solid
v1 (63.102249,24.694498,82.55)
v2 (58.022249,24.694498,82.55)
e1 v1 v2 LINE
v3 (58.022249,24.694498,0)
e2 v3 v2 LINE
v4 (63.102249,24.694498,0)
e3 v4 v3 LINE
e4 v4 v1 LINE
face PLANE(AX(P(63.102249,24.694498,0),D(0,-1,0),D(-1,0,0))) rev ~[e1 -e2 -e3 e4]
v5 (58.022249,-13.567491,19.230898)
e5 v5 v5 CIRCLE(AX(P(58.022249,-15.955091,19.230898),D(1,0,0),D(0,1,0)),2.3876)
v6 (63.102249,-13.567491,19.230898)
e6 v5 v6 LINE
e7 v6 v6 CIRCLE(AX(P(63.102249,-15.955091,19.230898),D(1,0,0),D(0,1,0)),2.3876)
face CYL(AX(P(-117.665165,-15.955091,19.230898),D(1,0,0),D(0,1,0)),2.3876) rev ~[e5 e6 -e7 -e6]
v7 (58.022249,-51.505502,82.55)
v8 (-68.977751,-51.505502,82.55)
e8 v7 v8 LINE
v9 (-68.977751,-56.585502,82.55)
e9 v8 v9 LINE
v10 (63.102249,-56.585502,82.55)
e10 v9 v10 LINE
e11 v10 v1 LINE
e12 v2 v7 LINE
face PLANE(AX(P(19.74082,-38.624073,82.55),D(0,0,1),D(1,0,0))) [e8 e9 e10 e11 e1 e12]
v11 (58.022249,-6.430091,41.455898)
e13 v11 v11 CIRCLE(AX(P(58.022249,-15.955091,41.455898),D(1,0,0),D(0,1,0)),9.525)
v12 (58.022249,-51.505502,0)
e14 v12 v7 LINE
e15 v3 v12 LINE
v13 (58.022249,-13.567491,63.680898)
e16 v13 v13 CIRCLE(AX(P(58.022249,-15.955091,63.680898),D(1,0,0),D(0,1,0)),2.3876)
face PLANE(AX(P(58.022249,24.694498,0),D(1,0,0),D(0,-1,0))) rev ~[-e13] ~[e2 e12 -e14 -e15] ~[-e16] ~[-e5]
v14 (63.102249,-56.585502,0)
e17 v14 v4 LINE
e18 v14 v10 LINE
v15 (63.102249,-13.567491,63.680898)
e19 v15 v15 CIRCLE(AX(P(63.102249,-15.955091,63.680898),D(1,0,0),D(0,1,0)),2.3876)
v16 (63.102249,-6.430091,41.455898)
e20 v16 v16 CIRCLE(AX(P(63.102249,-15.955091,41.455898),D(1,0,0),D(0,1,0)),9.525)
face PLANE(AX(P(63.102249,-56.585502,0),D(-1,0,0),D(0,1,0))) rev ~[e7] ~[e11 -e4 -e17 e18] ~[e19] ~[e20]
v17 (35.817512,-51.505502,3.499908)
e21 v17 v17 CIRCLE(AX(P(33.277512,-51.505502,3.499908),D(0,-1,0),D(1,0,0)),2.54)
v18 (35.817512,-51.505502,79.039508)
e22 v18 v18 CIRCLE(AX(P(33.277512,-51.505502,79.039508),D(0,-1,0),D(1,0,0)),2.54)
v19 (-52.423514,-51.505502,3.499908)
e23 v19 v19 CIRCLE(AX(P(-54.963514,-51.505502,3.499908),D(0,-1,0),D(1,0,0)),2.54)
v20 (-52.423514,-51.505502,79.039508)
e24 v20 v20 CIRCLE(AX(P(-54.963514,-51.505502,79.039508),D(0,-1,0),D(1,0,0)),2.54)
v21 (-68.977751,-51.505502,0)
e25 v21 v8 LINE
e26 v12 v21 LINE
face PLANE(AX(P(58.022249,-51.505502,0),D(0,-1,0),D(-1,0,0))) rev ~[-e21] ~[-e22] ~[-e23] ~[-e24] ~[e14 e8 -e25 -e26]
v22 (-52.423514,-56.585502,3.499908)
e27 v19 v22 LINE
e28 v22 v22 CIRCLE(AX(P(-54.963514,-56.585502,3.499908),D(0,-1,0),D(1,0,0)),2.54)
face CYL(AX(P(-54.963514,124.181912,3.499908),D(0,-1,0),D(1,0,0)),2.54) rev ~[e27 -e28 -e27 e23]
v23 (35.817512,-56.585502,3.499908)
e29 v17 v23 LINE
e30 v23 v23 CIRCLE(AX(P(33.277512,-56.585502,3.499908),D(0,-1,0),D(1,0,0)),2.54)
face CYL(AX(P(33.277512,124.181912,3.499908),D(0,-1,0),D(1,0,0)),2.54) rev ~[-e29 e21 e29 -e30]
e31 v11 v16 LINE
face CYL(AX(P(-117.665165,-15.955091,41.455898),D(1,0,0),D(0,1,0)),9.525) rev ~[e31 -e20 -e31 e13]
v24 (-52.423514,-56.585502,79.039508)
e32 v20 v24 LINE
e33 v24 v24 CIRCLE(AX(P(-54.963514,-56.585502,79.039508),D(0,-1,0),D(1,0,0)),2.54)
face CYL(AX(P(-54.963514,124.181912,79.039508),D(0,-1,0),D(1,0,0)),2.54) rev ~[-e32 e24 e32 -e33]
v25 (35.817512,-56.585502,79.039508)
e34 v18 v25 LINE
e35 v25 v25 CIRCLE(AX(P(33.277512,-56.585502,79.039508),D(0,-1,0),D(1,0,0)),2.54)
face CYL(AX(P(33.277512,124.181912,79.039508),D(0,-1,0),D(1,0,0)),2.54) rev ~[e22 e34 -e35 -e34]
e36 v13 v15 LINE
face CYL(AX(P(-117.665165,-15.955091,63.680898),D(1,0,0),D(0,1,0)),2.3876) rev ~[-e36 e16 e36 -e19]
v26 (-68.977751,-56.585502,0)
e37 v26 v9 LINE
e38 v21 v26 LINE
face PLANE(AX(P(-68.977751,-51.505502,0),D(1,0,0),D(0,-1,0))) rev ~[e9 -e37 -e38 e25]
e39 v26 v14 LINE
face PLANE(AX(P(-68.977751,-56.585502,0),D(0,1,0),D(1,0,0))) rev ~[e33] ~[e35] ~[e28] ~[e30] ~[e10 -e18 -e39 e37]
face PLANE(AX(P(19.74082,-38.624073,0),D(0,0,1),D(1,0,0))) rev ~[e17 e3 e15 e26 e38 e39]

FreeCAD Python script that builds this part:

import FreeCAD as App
import Part
import Sketcher
Q = App.Units.Quantity

doc = App.newDocument("Part")
body = doc.addObject("PartDesign::Body", "Body")

# Sketch on XY plane
sketch1 = doc.addObject("Sketcher::SketchObject", "Sketch")
body.addObject(sketch1)
sketch1.AttachmentSupport = (doc.XY_Plane, [""])
sketch1.MapMode = "FlatFace"
sketch1.addGeometry([
    Part.LineSegment(App.Vector(58, -52, 0), App.Vector(-69, -52, 0)),  # 0
    Part.LineSegment(App.Vector(-69, -52, 0), App.Vector(-69, -57, 0)),  # 1
    Part.LineSegment(App.Vector(-69, -57, 0), App.Vector(63, -57, 0)),  # 2
    Part.LineSegment(App.Vector(63, -57, 0), App.Vector(63, 25, 0)),  # 3
    Part.LineSegment(App.Vector(63, 25, 0), App.Vector(58, 25, 0)),  # 4
    Part.LineSegment(App.Vector(58, 25, 0), App.Vector(58, -52, 0)),  # 5
], False)
sketch1.addConstraint([
    Sketcher.Constraint("Coincident", 0, 2, 1, 1),
    Sketcher.Constraint("Coincident", 1, 2, 2, 1),
    Sketcher.Constraint("Coincident", 2, 2, 3, 1),
    Sketcher.Constraint("Coincident", 3, 2, 4, 1),
    Sketcher.Constraint("Coincident", 4, 2, 5, 1),
    Sketcher.Constraint("Coincident", 5, 2, 0, 1),
    Sketcher.Constraint("Horizontal", 0),
    Sketcher.Constraint("Vertical", 1),
    Sketcher.Constraint("Horizontal", 2),
    Sketcher.Constraint("Vertical", 3),
    Sketcher.Constraint("Horizontal", 4),
    Sketcher.Constraint("Vertical", 5),
    Sketcher.Constraint("Equal", 4, 1),
    Sketcher.Constraint("DistanceX", 0, 2, 0, 1, Q("5 in")),
    Sketcher.Constraint("DistanceY", 5, 2, 5, 1, Q("3 in")),
    Sketcher.Constraint("DistanceX", 2, 1, 2, 2, Q("5.2 in")),
    Sketcher.Constraint("DistanceY", 1, 2, -1, 1, 56.585502),
    Sketcher.Constraint("DistanceX", 0, 2, -1, 1, 68.977751),
])
pad1 = doc.addObject("PartDesign::Pad", "Pad")
body.addObject(pad1)
pad1.Profile = sketch1
pad1.Length = Q("3.25 in")

# Sketch on YZ plane
sketch2 = doc.addObject("Sketcher::SketchObject", "Sketch001")
body.addObject(sketch2)
sketch2.AttachmentSupport = (doc.YZ_Plane, [""])
sketch2.MapMode = "FlatFace"
sketch2.AttachmentOffset = App.Placement(App.Vector(0, 0, 58.022249), App.Rotation())
sketch2.addGeometry(Part.Circle(App.Vector(-16, 41, 0), App.Vector(0, 0, 1), 10), False)
sketch2.addConstraint([
    Sketcher.Constraint("Diameter", 0, Q("0.75 in")),
    Sketcher.Constraint("DistanceX", 0, 3, -1, 1, 15.955091),
    Sketcher.Constraint("DistanceY", -1, 1, 0, 3, 41.455898),
])
doc.recompute()
hole = doc.addObject("PartDesign::Hole", "Hole")
body.addObject(hole)
hole.Profile = sketch2
hole.ThreadType = "None"
hole.Diameter = Q("0.75 in")
hole.DepthType = "ThroughAll"
hole.Reversed = True

# Sketch on YZ plane
sketch3 = doc.addObject("Sketcher::SketchObject", "Sketch002")
body.addObject(sketch3)
sketch3.AttachmentSupport = (doc.YZ_Plane, [""])
sketch3.MapMode = "FlatFace"
sketch3.AttachmentOffset = App.Placement(App.Vector(0, 0, 58.022249), App.Rotation())
sketch3.addGeometry(Part.Circle(App.Vector(-16, 63.7, 0), App.Vector(0, 0, 1), 2.4), False)
sketch3.addConstraint([
    Sketcher.Constraint("Diameter", 0, Q("0.188 in")),
    Sketcher.Constraint("DistanceX", 0, 3, -1, 1, 15.955091),
    Sketcher.Constraint("DistanceY", -1, 1, 0, 3, 63.680898),
])
doc.recompute()
hole2 = doc.addObject("PartDesign::Hole", "Hole001")
body.addObject(hole2)
hole2.Profile = sketch3
hole2.ThreadType = "None"
hole2.Diameter = Q("0.188 in")
hole2.DepthType = "ThroughAll"
hole2.Reversed = True

# Sketch on YZ plane
sketch4 = doc.addObject("Sketcher::SketchObject", "Sketch003")
body.addObject(sketch4)
sketch4.AttachmentSupport = (doc.YZ_Plane, [""])
sketch4.MapMode = "FlatFace"
sketch4.AttachmentOffset = App.Placement(App.Vector(0, 0, 58.022249), App.Rotation())
sketch4.addGeometry(Part.Circle(App.Vector(-16, 19.2, 0), App.Vector(0, 0, 1), 2.4), False)
sketch4.addConstraint([
    Sketcher.Constraint("Diameter", 0, Q("0.188 in")),
    Sketcher.Constraint("DistanceY", -1, 1, 0, 3, 19.230898),
    Sketcher.Constraint("DistanceX", 0, 3, -1, 1, 15.955091),
])
doc.recompute()
hole3 = doc.addObject("PartDesign::Hole", "Hole002")
body.addObject(hole3)
hole3.Profile = sketch4
hole3.ThreadType = "None"
hole3.Diameter = Q("0.188 in")
hole3.DepthType = "ThroughAll"
hole3.Reversed = True

# Sketch on XZ plane
sketch5 = doc.addObject("Sketcher::SketchObject", "Sketch004")
body.addObject(sketch5)
sketch5.AttachmentSupport = (doc.XZ_Plane, [""])
sketch5.MapMode = "FlatFace"
sketch5.AttachmentOffset = App.Placement(App.Vector(0, 0, 51.505502), App.Rotation())
sketch5.addGeometry([
    Part.Circle(App.Vector(33.3, 79, 0), App.Vector(0, 0, 1), 2.5),
    Part.Circle(App.Vector(-55, 79, 0), App.Vector(0, 0, 1), 2.5),
    Part.Circle(App.Vector(-55, 3.5, 0), App.Vector(0, 0, 1), 2.5),
    Part.Circle(App.Vector(33.3, 3.5, 0), App.Vector(0, 0, 1), 2.5),
], False)
sketch5.addConstraint([
    Sketcher.Constraint("Equal", 0, 1),
    Sketcher.Constraint("Equal", 1, 2),
    Sketcher.Constraint("Equal", 2, 3),
    Sketcher.Constraint("Horizontal", 0, 3, 1, 3),
    Sketcher.Constraint("Horizontal", 2, 3, 3, 3),
    Sketcher.Constraint("Vertical", 1, 3, 2, 3),
    Sketcher.Constraint("Vertical", 0, 3, 3, 3),
    Sketcher.Constraint("Diameter", 0, Q("0.2 in")),
    Sketcher.Constraint("DistanceY", 2, 3, 1, 3, Q("2.974 in")),
    Sketcher.Constraint("DistanceY", -1, 1, 2, 3, 3.499908),
    Sketcher.Constraint("DistanceX", -1, 1, 0, 3, 33.277512),
    Sketcher.Constraint("DistanceX", 1, 3, -1, 1, 54.963514),
])
doc.recompute()
hole4 = doc.addObject("PartDesign::Hole", "Hole003")
body.addObject(hole4)
hole4.Profile = sketch5
hole4.ThreadType = "None"
hole4.Diameter = Q("0.2 in")
hole4.DepthType = "ThroughAll"
hole4.Reversed = True

doc.recompute()
